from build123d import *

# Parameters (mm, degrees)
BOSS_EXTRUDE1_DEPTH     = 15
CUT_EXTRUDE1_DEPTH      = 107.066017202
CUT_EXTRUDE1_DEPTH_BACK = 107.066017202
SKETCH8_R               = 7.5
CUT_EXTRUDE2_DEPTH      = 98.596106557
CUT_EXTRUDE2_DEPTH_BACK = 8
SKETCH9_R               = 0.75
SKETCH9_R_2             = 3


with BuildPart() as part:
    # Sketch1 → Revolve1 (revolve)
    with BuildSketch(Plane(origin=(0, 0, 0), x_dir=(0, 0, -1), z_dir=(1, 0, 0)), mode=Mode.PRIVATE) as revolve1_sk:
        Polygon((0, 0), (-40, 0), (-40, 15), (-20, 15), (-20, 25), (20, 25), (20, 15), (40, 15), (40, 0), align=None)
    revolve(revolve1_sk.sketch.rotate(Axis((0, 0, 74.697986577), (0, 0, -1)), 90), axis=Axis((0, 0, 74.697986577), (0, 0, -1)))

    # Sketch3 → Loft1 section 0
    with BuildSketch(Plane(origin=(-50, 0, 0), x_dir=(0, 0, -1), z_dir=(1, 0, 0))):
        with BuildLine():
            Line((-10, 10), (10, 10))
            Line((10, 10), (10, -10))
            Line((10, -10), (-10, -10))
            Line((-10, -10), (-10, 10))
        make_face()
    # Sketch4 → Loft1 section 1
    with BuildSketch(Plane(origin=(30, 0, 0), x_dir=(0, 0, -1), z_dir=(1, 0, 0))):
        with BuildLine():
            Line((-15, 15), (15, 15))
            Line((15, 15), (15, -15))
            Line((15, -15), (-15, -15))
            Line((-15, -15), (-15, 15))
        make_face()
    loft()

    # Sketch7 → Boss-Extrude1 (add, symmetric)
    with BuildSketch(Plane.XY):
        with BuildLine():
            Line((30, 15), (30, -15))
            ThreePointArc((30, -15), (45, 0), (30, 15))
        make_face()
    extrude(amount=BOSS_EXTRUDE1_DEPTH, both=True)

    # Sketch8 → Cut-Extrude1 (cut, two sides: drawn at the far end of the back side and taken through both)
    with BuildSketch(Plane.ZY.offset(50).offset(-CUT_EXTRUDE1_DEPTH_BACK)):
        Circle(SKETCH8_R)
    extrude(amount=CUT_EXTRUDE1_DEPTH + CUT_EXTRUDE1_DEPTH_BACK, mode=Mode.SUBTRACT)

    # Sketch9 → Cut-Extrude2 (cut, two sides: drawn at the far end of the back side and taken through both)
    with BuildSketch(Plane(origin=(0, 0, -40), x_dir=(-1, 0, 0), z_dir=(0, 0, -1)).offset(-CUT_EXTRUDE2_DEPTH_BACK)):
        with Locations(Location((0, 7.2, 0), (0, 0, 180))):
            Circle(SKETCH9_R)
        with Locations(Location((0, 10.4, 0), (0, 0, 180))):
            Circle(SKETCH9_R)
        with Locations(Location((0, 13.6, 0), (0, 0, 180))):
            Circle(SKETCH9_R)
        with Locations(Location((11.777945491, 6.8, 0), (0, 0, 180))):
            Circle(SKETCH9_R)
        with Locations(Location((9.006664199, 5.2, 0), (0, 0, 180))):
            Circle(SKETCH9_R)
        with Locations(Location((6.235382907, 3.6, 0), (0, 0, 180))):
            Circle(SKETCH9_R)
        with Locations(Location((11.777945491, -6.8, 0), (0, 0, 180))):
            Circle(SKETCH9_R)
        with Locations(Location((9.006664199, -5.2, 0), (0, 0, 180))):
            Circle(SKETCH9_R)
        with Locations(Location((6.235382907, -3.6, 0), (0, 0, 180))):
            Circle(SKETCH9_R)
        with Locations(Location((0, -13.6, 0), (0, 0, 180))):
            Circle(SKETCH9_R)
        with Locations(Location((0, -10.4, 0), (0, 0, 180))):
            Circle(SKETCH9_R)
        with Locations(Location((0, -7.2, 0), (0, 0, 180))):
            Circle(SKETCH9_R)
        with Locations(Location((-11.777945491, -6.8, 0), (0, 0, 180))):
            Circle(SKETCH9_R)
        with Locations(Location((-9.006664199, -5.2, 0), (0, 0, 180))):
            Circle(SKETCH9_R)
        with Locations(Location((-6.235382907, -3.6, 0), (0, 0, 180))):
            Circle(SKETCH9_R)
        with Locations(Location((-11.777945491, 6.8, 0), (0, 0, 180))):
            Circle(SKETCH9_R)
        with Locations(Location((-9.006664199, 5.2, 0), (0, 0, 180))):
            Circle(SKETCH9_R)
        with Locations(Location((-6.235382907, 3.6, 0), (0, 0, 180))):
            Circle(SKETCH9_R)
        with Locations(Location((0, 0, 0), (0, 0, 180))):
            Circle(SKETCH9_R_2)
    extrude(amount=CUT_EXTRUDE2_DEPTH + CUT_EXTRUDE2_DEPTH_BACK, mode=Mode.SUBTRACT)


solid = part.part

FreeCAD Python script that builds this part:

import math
import FreeCAD as App
import Part
import Sketcher
from FreeCAD import Vector
Q = App.Units.Quantity


def add_polygon(sketch, points):
    """Adds a closed chain of lines whose ends are joined by coincident constraints."""
    first, n = sketch.GeometryCount, len(points)
    for a, b in zip(points, points[1:] + points[:1]):
        sketch.addGeometry(Part.LineSegment(App.Vector(*a, 0), App.Vector(*b, 0)), False)
    for i in range(n):
        sketch.addConstraint(Sketcher.Constraint("Coincident", first + i, 2, first + (i + 1) % n, 1))

doc = App.newDocument("Part")
params = doc.addObject("Spreadsheet::Sheet", "Params")
for row, (alias, value) in enumerate([
    ("sketch1_width", "15 mm"),
    ("sketch1_width2", "10 mm"),
    ("sketch1_height", "80 mm"),
    ("sketch1_height2", "20 mm"),
    ("revolution_angle", "360 deg"),
    ("sketch2_width", "20 mm"),
    ("sketch3_width", "30 mm"),
    ("sketch4_radius", "15 mm"),
    ("pad1_length", "30 mm"),
    ("sketch5_diameter", "15 mm"),
    ("sketch6_diameter", "6 mm"),
    ("sketch6_diameter2", "1.5 mm"),
    ("pocket2_length", "98.596107 mm"),
    ("pocket2_length2", "8 mm"),
], start=1):
    params.set(f"A{row}", alias)
    params.set(f"B{row}", "=" + value)
    params.setAlias(f"B{row}", alias)

body = doc.addObject("PartDesign::Body", "Body")

sketch1 = doc.addObject("Sketcher::SketchObject", "Sketch")
body.addObject(sketch1)
sketch1.AttachmentSupport = (doc.YZ_Plane, [""])
sketch1.MapMode = "FlatFace"
add_polygon(sketch1, [(0, 40), (0, -40), (15, -40), (15, -20), (25, -20), (25, 20), (15, 20), (15, 40)])
sketch1.addConstraint([
    Sketcher.Constraint("Vertical", 0),
    Sketcher.Constraint("Horizontal", 1),
    Sketcher.Constraint("Vertical", 2),
    Sketcher.Constraint("Horizontal", 3),
    Sketcher.Constraint("Vertical", 4),
    Sketcher.Constraint("Horizontal", 5),
    Sketcher.Constraint("Vertical", 6),
    Sketcher.Constraint("Horizontal", 7),
    Sketcher.Constraint("Symmetric", 0, 2, 7, 2, -1, 1),
    Sketcher.Constraint("Symmetric", 2, 2, 5, 2, -1),
    Sketcher.Constraint("DistanceX", 1, 1, 1, 2, Q("15 mm")),
    Sketcher.Constraint("DistanceX", 3, 1, 3, 2, Q("10 mm")),
    Sketcher.Constraint("DistanceY", 0, 2, 0, 1, Q("80 mm")),
    Sketcher.Constraint("DistanceY", 2, 1, 2, 2, Q("20 mm")),
])
sketch1.setExpression("Constraints[18]", "Params.sketch1_width")
sketch1.setExpression("Constraints[19]", "Params.sketch1_width2")
sketch1.setExpression("Constraints[20]", "Params.sketch1_height")
sketch1.setExpression("Constraints[21]", "Params.sketch1_height2")
revolution = doc.addObject("PartDesign::Revolution", "Revolution")
body.addObject(revolution)
revolution.Profile = sketch1
revolution.ReferenceAxis = (sketch1, ["V_Axis"])
revolution.setExpression("Angle", "Params.revolution_angle")

sketch2 = doc.addObject("Sketcher::SketchObject", "Sketch001")
body.addObject(sketch2)
sketch2.AttachmentSupport = (doc.YZ_Plane, [""])
sketch2.MapMode = "FlatFace"
sketch2.AttachmentOffset = App.Placement(Vector(0, 0, -50), App.Rotation())
add_polygon(sketch2, [(10, -10), (10, 10), (-10, 10), (-10, -10)])
sketch2.addConstraint([
    Sketcher.Constraint("Vertical", 0),
    Sketcher.Constraint("Horizontal", 1),
    Sketcher.Constraint("Vertical", 2),
    Sketcher.Constraint("Horizontal", 3),
    Sketcher.Constraint("Symmetric", 0, 2, 2, 2, -1, 1),
    Sketcher.Constraint("Equal", 3, 0),
    Sketcher.Constraint("DistanceX", 1, 2, 1, 1, Q("20 mm")),
])
sketch2.setExpression("Constraints[10]", "Params.sketch2_width")

sketch3 = doc.addObject("Sketcher::SketchObject", "Sketch002")
body.addObject(sketch3)
sketch3.AttachmentSupport = (doc.YZ_Plane, [""])
sketch3.MapMode = "FlatFace"
sketch3.AttachmentOffset = App.Placement(Vector(0, 0, 30), App.Rotation())
add_polygon(sketch3, [(15, -15), (15, 15), (-15, 15), (-15, -15)])
sketch3.addConstraint([
    Sketcher.Constraint("Vertical", 0),
    Sketcher.Constraint("Horizontal", 1),
    Sketcher.Constraint("Vertical", 2),
    Sketcher.Constraint("Horizontal", 3),
    Sketcher.Constraint("Symmetric", 0, 2, 2, 2, -1, 1),
    Sketcher.Constraint("Equal", 3, 0),
    Sketcher.Constraint("DistanceX", 1, 2, 1, 1, Q("30 mm")),
])
sketch3.setExpression("Constraints[10]", "Params.sketch3_width")

additiveloft = doc.addObject("PartDesign::AdditiveLoft", "AdditiveLoft")
body.addObject(additiveloft)
additiveloft.Profile = sketch2
additiveloft.Sections = [sketch3]

sketch4 = doc.addObject("Sketcher::SketchObject", "Sketch003")
body.addObject(sketch4)
sketch4.AttachmentSupport = (doc.XY_Plane, [""])
sketch4.MapMode = "FlatFace"
sketch4.addGeometry([
    Part.LineSegment(Vector(30, 15, 0), Vector(30, -15, 0)),
    Part.ArcOfCircle(Part.Circle(Vector(30, 0, 0), Vector(0, 0, 1), 15), math.radians(-90), math.radians(90)),
], False)
sketch4.addConstraint([
    Sketcher.Constraint("Coincident", 0, 1, 1, 2),
    Sketcher.Constraint("Coincident", 1, 1, 0, 2),
    Sketcher.Constraint("Vertical", 0),
    Sketcher.Constraint("PointOnObject", 1, 3, -1),
    Sketcher.Constraint("Vertical", 1, 3, 0, 1),
    Sketcher.Constraint("Radius", 1, Q("15 mm")),
    Sketcher.Constraint("DistanceX", -1, 1, 1, 3, Q("30 mm")),
])
sketch4.setExpression("Constraints[5]", "Params.sketch4_radius")
pad1 = doc.addObject("PartDesign::Pad", "Pad")
body.addObject(pad1)
pad1.Profile = sketch4
pad1.setExpression("Length", "Params.pad1_length")
pad1.Midplane = True

sketch5 = doc.addObject("Sketcher::SketchObject", "Sketch004")
body.addObject(sketch5)
sketch5.AttachmentSupport = (doc.YZ_Plane, [""])
sketch5.MapMode = "FlatFace"
sketch5.AttachmentOffset = App.Placement(Vector(0, 0, -50), App.Rotation())
sketch5.addGeometry(Part.Circle(Vector(0, 0, 0), Vector(0, 0, 1), 8), False)
sketch5.addConstraint([
    Sketcher.Constraint("Coincident", 0, 3, -1, 1),
    Sketcher.Constraint("Diameter", 0, Q("15 mm")),
])
sketch5.setExpression("Constraints[1]", "Params.sketch5_diameter")
pocket1 = doc.addObject("PartDesign::Pocket", "Pocket")
body.addObject(pocket1)
pocket1.Profile = sketch5
pocket1.Type = "ThroughAll"
pocket1.Midplane = True

sketch6 = doc.addObject("Sketcher::SketchObject", "Sketch005")
body.addObject(sketch6)
sketch6.AttachmentSupport = (doc.XY_Plane, [""])
sketch6.MapMode = "FlatFace"
sketch6.AttachmentOffset = App.Placement(Vector(0, 0, -40), App.Rotation())
sketch6.addGeometry([
    Part.Circle(Vector(0, 7.2, 0), Vector(0, 0, 1), 0.8),
    Part.Circle(Vector(0, 10.4, 0), Vector(0, 0, 1), 0.8),
    Part.Circle(Vector(0, 13.6, 0), Vector(0, 0, 1), 0.8),
    Part.Circle(Vector(-11.8, 6.8, 0), Vector(0, 0, 1), 0.8),
    Part.Circle(Vector(-9, 5.2, 0), Vector(0, 0, 1), 0.8),
    Part.Circle(Vector(-6.2, 3.6, 0), Vector(0, 0, 1), 0.8),
    Part.Circle(Vector(-11.8, -6.8, 0), Vector(0, 0, 1), 0.8),
    Part.Circle(Vector(-9, -5.2, 0), Vector(0, 0, 1), 0.8),
    Part.Circle(Vector(-6.2, -3.6, 0), Vector(0, 0, 1), 0.8),
    Part.Circle(Vector(0, -13.6, 0), Vector(0, 0, 1), 0.8),
    Part.Circle(Vector(0, -10.4, 0), Vector(0, 0, 1), 0.8),
    Part.Circle(Vector(0, -7.2, 0), Vector(0, 0, 1), 0.8),
    Part.Circle(Vector(11.8, -6.8, 0), Vector(0, 0, 1), 0.8),
    Part.Circle(Vector(9, -5.2, 0), Vector(0, 0, 1), 0.8),
    Part.Circle(Vector(6.2, -3.6, 0), Vector(0, 0, 1), 0.8),
    Part.Circle(Vector(11.8, 6.8, 0), Vector(0, 0, 1), 0.8),
    Part.Circle(Vector(9, 5.2, 0), Vector(0, 0, 1), 0.8),
    Part.Circle(Vector(6.2, 3.6, 0), Vector(0, 0, 1), 0.8),
    Part.Circle(Vector(0, 0, 0), Vector(0, 0, 1), 3),
], False)
sketch6.addConstraint([
    Sketcher.Constraint("Coincident", 18, 3, -1, 1),
    Sketcher.Constraint("Equal", 0, 1),
    Sketcher.Constraint("Equal", 1, 2),
    Sketcher.Constraint("Equal", 2, 3),
    Sketcher.Constraint("Equal", 3, 4),
    Sketcher.Constraint("Equal", 4, 5),
    Sketcher.Constraint("Equal", 5, 6),
    Sketcher.Constraint("Equal", 6, 7),
    Sketcher.Constraint("Equal", 7, 8),
    Sketcher.Constraint("Equal", 8, 9),
    Sketcher.Constraint("Equal", 9, 10),
    Sketcher.Constraint("Equal", 10, 11),
    Sketcher.Constraint("Equal", 11, 12),
    Sketcher.Constraint("Equal", 12, 13),
    Sketcher.Constraint("Equal", 13, 14),
    Sketcher.Constraint("Equal", 14, 15),
    Sketcher.Constraint("Equal", 15, 16),
    Sketcher.Constraint("Equal", 16, 17),
    Sketcher.Constraint("Symmetric", 2, 3, 9, 3, -1, 1),
    Sketcher.Constraint("Symmetric", 1, 3, 10, 3, -1, 1),
    Sketcher.Constraint("Symmetric", 0, 3, 11, 3, -1, 1),
    Sketcher.Constraint("Symmetric", 3, 3, 12, 3, -1, 1),
    Sketcher.Constraint("Symmetric", 4, 3, 13, 3, -1, 1),
    Sketcher.Constraint("Symmetric", 5, 3, 14, 3, -1, 1),
    Sketcher.Constraint("Symmetric", 6, 3, 15, 3, -1, 1),
    Sketcher.Constraint("Symmetric", 7, 3, 16, 3, -1, 1),
    Sketcher.Constraint("Symmetric", 8, 3, 17, 3, -1, 1),
    Sketcher.Constraint("Symmetric", 6, 3, 12, 3, -2),
    Sketcher.Constraint("Symmetric", 7, 3, 13, 3, -2),
    Sketcher.Constraint("Symmetric", 8, 3, 14, 3, -2),
    Sketcher.Constraint("PointOnObject", 0, 3, -2),
    Sketcher.Constraint("PointOnObject", 1, 3, -2),
    Sketcher.Constraint("PointOnObject", 2, 3, -2),
    Sketcher.Constraint("Diameter", 18, Q("6 mm")),
    Sketcher.Constraint("Diameter", 0, Q("1.5 mm")),
    Sketcher.Constraint("DistanceY", 4, 3, 0, 3, Q("2 mm")),
    Sketcher.Constraint("DistanceY", 5, 3, 2, 3, Q("10 mm")),
    Sketcher.Constraint("DistanceY", 6, 3, 4, 3, Q("12 mm")),
    Sketcher.Constraint("DistanceY", 10, 3, 5, 3, Q("14 mm")),
    Sketcher.Constraint("DistanceY", -1, 1, 0, 3, Q("7.2 mm")),
    Sketcher.Constraint("DistanceY", -1, 1, 1, 3, Q("10.4 mm")),
    Sketcher.Constraint("DistanceX", 3, 3, 4, 3, Q("2.771281 mm")),
    Sketcher.Constraint("DistanceX", 4, 3, 5, 3, Q("2.771281 mm")),
    Sketcher.Constraint("DistanceX", 8, 3, 12, 3, Q("18.013328 mm")),
])
sketch6.setExpression("Constraints[33]", "Params.sketch6_diameter")
sketch6.setExpression("Constraints[34]", "Params.sketch6_diameter2")
pocket2 = doc.addObject("PartDesign::Pocket", "Pocket001")
body.addObject(pocket2)
pocket2.Profile = sketch6
pocket2.Type = "TwoLengths"
pocket2.setExpression("Length", "Params.pocket2_length")
pocket2.setExpression("Length2", "Params.pocket2_length2")

doc.recompute()
